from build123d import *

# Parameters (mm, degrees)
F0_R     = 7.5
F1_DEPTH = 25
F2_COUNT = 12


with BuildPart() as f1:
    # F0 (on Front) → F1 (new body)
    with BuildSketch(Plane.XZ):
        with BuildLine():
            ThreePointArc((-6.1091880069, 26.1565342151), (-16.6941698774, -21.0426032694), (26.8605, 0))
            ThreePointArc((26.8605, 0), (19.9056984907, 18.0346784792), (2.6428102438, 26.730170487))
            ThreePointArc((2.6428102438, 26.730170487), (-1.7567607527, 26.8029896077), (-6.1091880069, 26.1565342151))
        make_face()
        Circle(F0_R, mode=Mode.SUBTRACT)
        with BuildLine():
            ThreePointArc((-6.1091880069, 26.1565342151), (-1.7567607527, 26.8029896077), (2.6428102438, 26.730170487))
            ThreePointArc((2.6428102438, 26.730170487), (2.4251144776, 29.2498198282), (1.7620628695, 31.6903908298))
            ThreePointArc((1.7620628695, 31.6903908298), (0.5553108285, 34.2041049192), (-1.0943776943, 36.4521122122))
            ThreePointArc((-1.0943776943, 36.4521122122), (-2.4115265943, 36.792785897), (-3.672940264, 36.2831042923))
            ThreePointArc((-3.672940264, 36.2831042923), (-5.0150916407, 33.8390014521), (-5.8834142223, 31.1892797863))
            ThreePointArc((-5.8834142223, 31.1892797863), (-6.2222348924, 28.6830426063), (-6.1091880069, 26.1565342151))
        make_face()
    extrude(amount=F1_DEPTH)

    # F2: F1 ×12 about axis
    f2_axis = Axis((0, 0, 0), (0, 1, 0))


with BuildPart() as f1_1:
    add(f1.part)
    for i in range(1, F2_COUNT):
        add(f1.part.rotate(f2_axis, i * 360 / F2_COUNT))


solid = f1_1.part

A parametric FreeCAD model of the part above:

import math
import FreeCAD as App
import Part
import Sketcher
Q = App.Units.Quantity

doc = App.newDocument("Part")
params = doc.addObject("Spreadsheet::Sheet", "Params")
for row, (alias, value) in enumerate([
    ("sketch1_diameter", "15 mm"),
    ("pad1_length", "25 mm"),
], start=1):
    params.set(f"A{row}", alias)
    params.set(f"B{row}", "=" + value)
    params.setAlias(f"B{row}", alias)

body = doc.addObject("PartDesign::Body", "Body")

# Sketch on XZ plane
sketch1 = body.newObject("Sketcher::SketchObject", "Sketch")
sketch1.AttachmentSupport = (doc.getObject("XZ_Plane"), [""])
sketch1.MapMode = "FlatFace"
sketch1.addGeometry([
    Part.ArcOfCircle(Part.Circle(App.Vector(0, 0, 0), App.Vector(0, 0, 1), 26.8605), math.radians(103.146479), math.radians(360)),  # 0
    Part.ArcOfCircle(Part.Circle(App.Vector(0, 0, 0), App.Vector(0, 0, 1), 26.8605), math.radians(0), math.radians(84.353521)),  # 1
    Part.ArcOfCircle(Part.Circle(App.Vector(-11.497532, 26.777685, 0), App.Vector(0, 0, 1), 14.140422), math.radians(-0.192524), math.radians(20.329767)),  # 2
    Part.ArcOfCircle(Part.Circle(App.Vector(-12.352964, 26.460746, 0), App.Vector(0, 0, 1), 15.05268), math.radians(20.329767), math.radians(41.587265)),  # 3
    Part.ArcOfCircle(Part.Circle(App.Vector(-2.269471, 34.62543, 0), App.Vector(0, 0, 1), 2.172006), math.radians(57.247079), math.radians(130.252921)),  # 4
    Part.ArcOfCircle(Part.Circle(App.Vector(8.793462, 27.846756, 0), App.Vector(0, 0, 1), 15.05268), math.radians(145.912735), math.radians(167.170233)),  # 5
    Part.ArcOfCircle(Part.Circle(App.Vector(7.90398, 28.049327, 0), App.Vector(0, 0, 1), 14.140422), math.radians(167.170233), math.radians(187.692524)),  # 6
    Part.Circle(App.Vector(0, 0, 0), App.Vector(0, 0, 1), 7.5),  # 7
], False)
sketch1.addConstraint([
    Sketcher.Constraint("Coincident", 0, 2, 1, 1),
    Sketcher.Constraint("Coincident", 1, 2, 2, 1),
    Sketcher.Constraint("Coincident", 2, 2, 3, 1),
    Sketcher.Constraint("Coincident", 3, 2, 4, 1),
    Sketcher.Constraint("Coincident", 4, 2, 5, 1),
    Sketcher.Constraint("Coincident", 5, 2, 6, 1),
    Sketcher.Constraint("Coincident", 6, 2, 0, 1),
    Sketcher.Constraint("Coincident", 0, 3, -1, 1),
    Sketcher.Constraint("Coincident", 1, 3, -1, 1),
    Sketcher.Constraint("Coincident", 7, 3, -1, 1),
    Sketcher.Constraint("PointOnObject", 0, 2, -1),
    Sketcher.Constraint("Diameter", 7, Q("15 mm")),
    Sketcher.Constraint("Radius", 0, Q("26.8605 mm")),
    Sketcher.Constraint("Radius", 3, Q("15.05268 mm")),
    Sketcher.Constraint("Radius", 5, Q("15.05268 mm")),
    Sketcher.Constraint("Radius", 2, Q("14.140422 mm")),
    Sketcher.Constraint("Radius", 4, Q("2.172006 mm")),
    Sketcher.Constraint("Radius", 6, Q("14.140422 mm")),
    Sketcher.Constraint("DistanceX", 6, 2, 1, 2, Q("8.751998 mm")),
    Sketcher.Constraint("DistanceX", 2, 2, 5, 3, Q("7.031399 mm")),
    Sketcher.Constraint("DistanceX", 2, 3, -1, 1, Q("11.497532 mm")),
    Sketcher.Constraint("DistanceX", 4, 3, -1, 1, Q("2.269471 mm")),
    Sketcher.Constraint("DistanceY", -1, 1, 4, 3, Q("34.62543 mm")),
    Sketcher.Constraint("DistanceX", -1, 1, 6, 3, Q("7.90398 mm")),
    Sketcher.Constraint("DistanceY", -1, 1, 2, 2, Q("31.690391 mm")),
    Sketcher.Constraint("DistanceX", 4, 2, -1, 1, Q("3.67294 mm")),
    Sketcher.Constraint("DistanceY", -1, 1, 5, 2, Q("31.18928 mm")),
    Sketcher.Constraint("DistanceX", 3, 3, 2, 3, Q("0.855432 mm")),
])
sketch1.setExpression("Constraints[11]", "Params.sketch1_diameter")
pad1 = body.newObject("PartDesign::Pad", "Pad")
pad1.Profile = sketch1
pad1.setExpression("Length", "Params.pad1_length")
body2 = doc.addObject("PartDesign::Body", "Body001")
doc.recompute()

body2.BaseFeature = body
doc.recompute()

body3 = doc.addObject("PartDesign::Body", "Body002")
body3.BaseFeature = body
body3.Placement = App.Placement(App.Vector(0, 0, 0), App.Rotation(App.Vector(0, 1, 0), 30))
boolean = body2.newObject("PartDesign::Boolean", "Boolean")
boolean.Type = "Fuse"
boolean.addObjects([body3])
doc.recompute()

body4 = doc.addObject("PartDesign::Body", "Body003")
body4.BaseFeature = body
body4.Placement = App.Placement(App.Vector(0, 0, 0), App.Rotation(App.Vector(0, 1, 0), 60))
boolean2 = body2.newObject("PartDesign::Boolean", "Boolean001")
boolean2.Type = "Fuse"
boolean2.addObjects([body4])
doc.recompute()

body5 = doc.addObject("PartDesign::Body", "Body004")
body5.BaseFeature = body
body5.Placement = App.Placement(App.Vector(0, 0, 0), App.Rotation(App.Vector(0, 1, 0), 90))
boolean3 = body2.newObject("PartDesign::Boolean", "Boolean002")
boolean3.Type = "Fuse"
boolean3.addObjects([body5])
doc.recompute()

body6 = doc.addObject("PartDesign::Body", "Body005")
body6.BaseFeature = body
body6.Placement = App.Placement(App.Vector(0, 0, 0), App.Rotation(App.Vector(0, 1, 0), 120))
boolean4 = body2.newObject("PartDesign::Boolean", "Boolean003")
boolean4.Type = "Fuse"
boolean4.addObjects([body6])
doc.recompute()

body7 = doc.addObject("PartDesign::Body", "Body006")
body7.BaseFeature = body
body7.Placement = App.Placement(App.Vector(0, 0, 0), App.Rotation(App.Vector(0, 1, 0), 150))
boolean5 = body2.newObject("PartDesign::Boolean", "Boolean004")
boolean5.Type = "Fuse"
boolean5.addObjects([body7])
doc.recompute()

body8 = doc.addObject("PartDesign::Body", "Body007")
body8.BaseFeature = body
body8.Placement = App.Placement(App.Vector(0, 0, 0), App.Rotation(App.Vector(0, 1, 0), 180))
boolean6 = body2.newObject("PartDesign::Boolean", "Boolean005")
boolean6.Type = "Fuse"
boolean6.addObjects([body8])
doc.recompute()

body9 = doc.addObject("PartDesign::Body", "Body008")
body9.BaseFeature = body
body9.Placement = App.Placement(App.Vector(0, 0, 0), App.Rotation(App.Vector(0, 1, 0), 210))
boolean7 = body2.newObject("PartDesign::Boolean", "Boolean006")
boolean7.Type = "Fuse"
boolean7.addObjects([body9])
doc.recompute()

body10 = doc.addObject("PartDesign::Body", "Body009")
body10.BaseFeature = body
body10.Placement = App.Placement(App.Vector(0, 0, 0), App.Rotation(App.Vector(0, 1, 0), 240))
boolean8 = body2.newObject("PartDesign::Boolean", "Boolean007")
boolean8.Type = "Fuse"
boolean8.addObjects([body10])
doc.recompute()

body11 = doc.addObject("PartDesign::Body", "Body010")
body11.BaseFeature = body
body11.Placement = App.Placement(App.Vector(0, 0, 0), App.Rotation(App.Vector(0, 1, 0), 270))
boolean9 = body2.newObject("PartDesign::Boolean", "Boolean008")
boolean9.Type = "Fuse"
boolean9.addObjects([body11])
doc.recompute()

body12 = doc.addObject("PartDesign::Body", "Body011")
body12.BaseFeature = body
body12.Placement = App.Placement(App.Vector(0, 0, 0), App.Rotation(App.Vector(0, 1, 0), 300))
boolean10 = body2.newObject("PartDesign::Boolean", "Boolean009")
boolean10.Type = "Fuse"
boolean10.addObjects([body12])
doc.recompute()

body.Placement = App.Placement(App.Vector(0, 0, 0), App.Rotation(App.Vector(0, 1, 0), 330))
boolean11 = body2.newObject("PartDesign::Boolean", "Boolean010")
boolean11.Type = "Fuse"
boolean11.addObjects([body])

doc.recompute()
